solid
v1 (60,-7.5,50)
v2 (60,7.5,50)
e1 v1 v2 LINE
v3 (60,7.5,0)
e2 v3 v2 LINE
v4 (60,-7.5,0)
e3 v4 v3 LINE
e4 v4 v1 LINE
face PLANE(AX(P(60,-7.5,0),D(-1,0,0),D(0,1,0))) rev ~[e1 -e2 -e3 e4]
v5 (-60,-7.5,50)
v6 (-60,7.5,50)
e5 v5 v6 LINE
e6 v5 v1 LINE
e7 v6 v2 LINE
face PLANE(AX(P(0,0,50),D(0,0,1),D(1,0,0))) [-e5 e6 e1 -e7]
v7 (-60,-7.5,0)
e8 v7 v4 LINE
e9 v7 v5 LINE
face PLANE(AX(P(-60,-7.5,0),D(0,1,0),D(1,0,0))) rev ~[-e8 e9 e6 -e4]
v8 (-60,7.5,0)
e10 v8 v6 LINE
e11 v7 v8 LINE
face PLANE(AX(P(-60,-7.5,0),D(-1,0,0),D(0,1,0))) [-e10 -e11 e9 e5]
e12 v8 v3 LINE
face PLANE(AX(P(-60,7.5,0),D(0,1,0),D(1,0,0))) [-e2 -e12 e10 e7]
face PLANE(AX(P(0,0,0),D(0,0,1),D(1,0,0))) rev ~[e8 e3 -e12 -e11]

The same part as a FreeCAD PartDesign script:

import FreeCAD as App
import Part
import Sketcher
from FreeCAD import Vector

doc = App.newDocument("Part")
body = doc.addObject("PartDesign::Body", "Body")

sketch1 = body.newObject("Sketcher::SketchObject", "Sketch")
sketch1.AttachmentSupport = (doc.getObject("XY_Plane"), [""])
sketch1.MapMode = "FlatFace"
sketch1.addGeometry([
    Part.LineSegment(Vector(-60, 8, 0), Vector(-60, -8, 0)),
    Part.LineSegment(Vector(-60, -8, 0), Vector(60, -8, 0)),
    Part.LineSegment(Vector(60, -8, 0), Vector(60, 8, 0)),
    Part.LineSegment(Vector(60, 8, 0), Vector(-60, 8, 0)),
], False)
sketch1.addConstraint([
    Sketcher.Constraint("Coincident", 0, 2, 1, 1),
    Sketcher.Constraint("Coincident", 1, 2, 2, 1),
    Sketcher.Constraint("Coincident", 2, 2, 3, 1),
    Sketcher.Constraint("Coincident", 3, 2, 0, 1),
    Sketcher.Constraint("Vertical", 0),
    Sketcher.Constraint("Horizontal", 1),
    Sketcher.Constraint("Vertical", 2),
    Sketcher.Constraint("Horizontal", 3),
    Sketcher.Constraint("Symmetric", 0, 2, 2, 2, -1, 1),
    Sketcher.Constraint("DistanceX", 1, 1, 1, 2, 120.0),
    Sketcher.Constraint("DistanceY", 0, 2, 0, 1, 15.0),
])
pad1 = body.newObject("PartDesign::Pad", "Pad")
pad1.Profile = sketch1
pad1.Length = 50

doc.recompute()
